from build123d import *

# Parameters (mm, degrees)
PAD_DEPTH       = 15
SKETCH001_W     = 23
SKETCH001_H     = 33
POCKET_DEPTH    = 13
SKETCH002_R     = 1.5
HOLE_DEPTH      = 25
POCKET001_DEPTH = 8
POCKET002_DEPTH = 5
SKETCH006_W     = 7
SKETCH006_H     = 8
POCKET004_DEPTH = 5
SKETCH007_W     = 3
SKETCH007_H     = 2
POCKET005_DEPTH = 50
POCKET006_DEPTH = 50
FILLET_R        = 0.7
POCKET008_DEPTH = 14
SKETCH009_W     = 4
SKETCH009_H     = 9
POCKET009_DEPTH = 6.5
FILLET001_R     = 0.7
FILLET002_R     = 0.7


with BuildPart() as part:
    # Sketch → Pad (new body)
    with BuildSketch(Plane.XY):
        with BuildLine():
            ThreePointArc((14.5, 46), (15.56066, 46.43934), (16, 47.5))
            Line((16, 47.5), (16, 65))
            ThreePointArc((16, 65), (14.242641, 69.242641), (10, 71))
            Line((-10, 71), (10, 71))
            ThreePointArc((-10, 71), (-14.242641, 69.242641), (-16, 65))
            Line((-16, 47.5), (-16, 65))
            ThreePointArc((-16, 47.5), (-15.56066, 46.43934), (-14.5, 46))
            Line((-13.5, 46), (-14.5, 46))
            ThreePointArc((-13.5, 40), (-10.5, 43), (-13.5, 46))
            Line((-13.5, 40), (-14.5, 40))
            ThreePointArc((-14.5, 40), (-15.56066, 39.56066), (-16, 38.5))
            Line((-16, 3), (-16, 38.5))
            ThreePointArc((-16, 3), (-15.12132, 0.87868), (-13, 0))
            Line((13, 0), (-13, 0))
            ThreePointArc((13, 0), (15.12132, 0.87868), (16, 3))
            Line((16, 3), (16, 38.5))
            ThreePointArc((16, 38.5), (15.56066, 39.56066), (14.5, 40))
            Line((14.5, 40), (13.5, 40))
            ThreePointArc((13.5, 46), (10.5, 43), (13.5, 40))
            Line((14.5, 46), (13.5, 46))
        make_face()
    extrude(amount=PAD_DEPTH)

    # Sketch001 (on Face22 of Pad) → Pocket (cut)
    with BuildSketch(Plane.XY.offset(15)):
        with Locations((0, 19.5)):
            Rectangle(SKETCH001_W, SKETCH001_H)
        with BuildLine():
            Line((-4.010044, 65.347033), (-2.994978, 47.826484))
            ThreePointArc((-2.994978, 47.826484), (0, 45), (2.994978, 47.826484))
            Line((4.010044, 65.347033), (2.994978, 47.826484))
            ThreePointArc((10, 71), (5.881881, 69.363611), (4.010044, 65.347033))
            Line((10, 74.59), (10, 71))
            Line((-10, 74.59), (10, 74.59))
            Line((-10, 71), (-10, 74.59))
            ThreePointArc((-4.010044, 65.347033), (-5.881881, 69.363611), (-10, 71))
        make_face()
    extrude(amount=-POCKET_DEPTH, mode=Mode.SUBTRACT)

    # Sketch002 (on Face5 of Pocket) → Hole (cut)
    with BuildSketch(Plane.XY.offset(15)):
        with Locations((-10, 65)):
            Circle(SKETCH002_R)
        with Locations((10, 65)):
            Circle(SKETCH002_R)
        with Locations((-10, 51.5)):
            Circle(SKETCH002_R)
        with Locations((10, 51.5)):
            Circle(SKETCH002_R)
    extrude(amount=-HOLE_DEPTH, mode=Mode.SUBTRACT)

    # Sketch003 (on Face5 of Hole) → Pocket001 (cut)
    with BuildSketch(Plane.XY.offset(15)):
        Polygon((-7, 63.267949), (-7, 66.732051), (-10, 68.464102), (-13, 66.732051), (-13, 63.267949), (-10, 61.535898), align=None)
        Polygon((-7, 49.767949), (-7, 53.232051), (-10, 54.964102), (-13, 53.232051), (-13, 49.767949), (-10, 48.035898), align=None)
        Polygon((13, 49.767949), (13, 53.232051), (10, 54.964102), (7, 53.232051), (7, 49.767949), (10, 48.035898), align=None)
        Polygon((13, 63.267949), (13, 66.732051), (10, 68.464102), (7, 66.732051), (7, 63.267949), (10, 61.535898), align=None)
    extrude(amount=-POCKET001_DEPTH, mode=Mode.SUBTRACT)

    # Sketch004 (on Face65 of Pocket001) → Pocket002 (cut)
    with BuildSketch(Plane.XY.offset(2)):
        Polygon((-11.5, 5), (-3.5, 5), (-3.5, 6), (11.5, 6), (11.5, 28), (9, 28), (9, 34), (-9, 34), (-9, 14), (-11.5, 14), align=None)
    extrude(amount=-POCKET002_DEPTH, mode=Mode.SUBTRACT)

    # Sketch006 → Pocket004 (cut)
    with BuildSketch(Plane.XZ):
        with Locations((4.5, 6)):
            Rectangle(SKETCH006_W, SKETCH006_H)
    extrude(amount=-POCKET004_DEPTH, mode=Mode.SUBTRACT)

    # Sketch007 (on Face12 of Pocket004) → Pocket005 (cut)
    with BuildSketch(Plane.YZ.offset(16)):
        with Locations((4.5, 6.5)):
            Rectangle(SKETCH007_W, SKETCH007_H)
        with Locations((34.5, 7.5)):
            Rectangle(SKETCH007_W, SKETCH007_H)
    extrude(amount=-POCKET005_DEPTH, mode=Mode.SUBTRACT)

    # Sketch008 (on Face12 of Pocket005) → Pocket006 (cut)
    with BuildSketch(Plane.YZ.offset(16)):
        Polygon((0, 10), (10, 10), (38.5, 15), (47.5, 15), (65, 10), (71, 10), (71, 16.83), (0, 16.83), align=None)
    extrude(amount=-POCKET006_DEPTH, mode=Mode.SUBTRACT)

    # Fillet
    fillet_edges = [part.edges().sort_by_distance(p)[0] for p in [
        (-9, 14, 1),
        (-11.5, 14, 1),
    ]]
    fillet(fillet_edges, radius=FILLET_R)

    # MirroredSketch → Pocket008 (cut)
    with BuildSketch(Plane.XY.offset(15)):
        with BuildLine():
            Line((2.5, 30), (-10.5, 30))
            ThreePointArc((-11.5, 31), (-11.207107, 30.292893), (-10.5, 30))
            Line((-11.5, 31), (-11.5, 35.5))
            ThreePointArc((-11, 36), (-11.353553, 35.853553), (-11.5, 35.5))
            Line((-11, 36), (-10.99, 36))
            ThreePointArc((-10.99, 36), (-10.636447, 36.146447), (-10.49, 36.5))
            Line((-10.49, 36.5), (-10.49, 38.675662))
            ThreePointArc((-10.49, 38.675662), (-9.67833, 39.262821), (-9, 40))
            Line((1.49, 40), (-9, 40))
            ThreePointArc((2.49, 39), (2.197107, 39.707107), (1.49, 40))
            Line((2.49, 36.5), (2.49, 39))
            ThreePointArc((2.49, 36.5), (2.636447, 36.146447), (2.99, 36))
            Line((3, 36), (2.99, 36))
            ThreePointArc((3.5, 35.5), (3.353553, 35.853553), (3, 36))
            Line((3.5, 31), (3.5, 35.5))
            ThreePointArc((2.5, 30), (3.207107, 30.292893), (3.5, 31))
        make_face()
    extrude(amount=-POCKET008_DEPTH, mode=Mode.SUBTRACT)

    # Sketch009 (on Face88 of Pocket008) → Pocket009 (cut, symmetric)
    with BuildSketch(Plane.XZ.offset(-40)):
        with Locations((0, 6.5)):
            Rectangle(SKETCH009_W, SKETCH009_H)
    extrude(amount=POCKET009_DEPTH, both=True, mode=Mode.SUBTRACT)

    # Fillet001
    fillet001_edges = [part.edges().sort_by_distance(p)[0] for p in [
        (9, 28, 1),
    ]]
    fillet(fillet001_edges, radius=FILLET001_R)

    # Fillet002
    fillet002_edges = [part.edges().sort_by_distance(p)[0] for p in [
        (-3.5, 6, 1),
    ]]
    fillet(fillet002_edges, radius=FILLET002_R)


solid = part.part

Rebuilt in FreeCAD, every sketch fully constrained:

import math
import FreeCAD as App
import Part
import Sketcher
from FreeCAD import Vector
Q = App.Units.Quantity


def edges_at(feature, points):
    """Names of the edges that pass closest to the given points."""
    edges = feature.Shape.Edges
    near = lambda p: min(range(len(edges)), key=lambda i: edges[i].distToShape(Part.Vertex(*p))[0])
    return sorted({f"Edge{near(p) + 1}" for p in points})


def add_polygon(sketch, points):
    """Adds a closed chain of lines whose ends are joined by coincident constraints."""
    first, n = sketch.GeometryCount, len(points)
    for a, b in zip(points, points[1:] + points[:1]):
        sketch.addGeometry(Part.LineSegment(App.Vector(*a, 0), App.Vector(*b, 0)), False)
    for i in range(n):
        sketch.addConstraint(Sketcher.Constraint("Coincident", first + i, 2, first + (i + 1) % n, 1))

doc = App.newDocument("Part")
body = doc.addObject("PartDesign::Body", "Body")

# Sketch on XY plane
sketch1 = body.newObject("Sketcher::SketchObject", "Sketch")
sketch1.AttachmentSupport = (doc.getObject("XY_Plane"), [""])
sketch1.MapMode = "FlatFace"
sketch1.addGeometry(Part.ArcOfCircle(Part.Circle(Vector(14.499999, 47.500001, 0), Vector(0, 0, 1), 1.500001), math.radians(-89.999978), math.radians(-0.000022)), False)
sketch1.addGeometry(Part.LineSegment(Vector(16, 47.5, 0), Vector(16, 65, 0)), False)
sketch1.addGeometry(Part.ArcOfCircle(Part.Circle(Vector(10.000001, 65.000001, 0), Vector(0, 0, 1), 5.999999), math.radians(-0.00001), math.radians(90.00001)), False)
sketch1.addGeometry(Part.LineSegment(Vector(10, 71, 0), Vector(-10, 71, 0)), False)
sketch1.addGeometry(Part.ArcOfCircle(Part.Circle(Vector(-10.000001, 65.000001, 0), Vector(0, 0, 1), 5.999999), math.radians(89.99999), math.radians(180.00001)), False)
sketch1.addGeometry(Part.LineSegment(Vector(-16, 65, 0), Vector(-16, 47.5, 0)), False)
sketch1.addGeometry(Part.ArcOfCircle(Part.Circle(Vector(-14.499999, 47.500001, 0), Vector(0, 0, 1), 1.500001), math.radians(-179.999978), math.radians(-90.000022)), False)
sketch1.addGeometry(Part.LineSegment(Vector(-14.5, 46, 0), Vector(-13.5, 46, 0)), False)
sketch1.addGeometry(Part.ArcOfCircle(Part.Circle(Vector(-13.5, 43, 0), Vector(0, 0, 1), 3), math.radians(-90), math.radians(90)), False)
sketch1.addGeometry(Part.LineSegment(Vector(-13.5, 40, 0), Vector(-14.5, 40, 0)), False)
sketch1.addGeometry(Part.ArcOfCircle(Part.Circle(Vector(-14.499999, 38.499999, 0), Vector(0, 0, 1), 1.500001), math.radians(90.000022), math.radians(179.999978)), False)
sketch1.addGeometry(Part.LineSegment(Vector(-16, 38.5, 0), Vector(-16, 3, 0)), False)
sketch1.addGeometry(Part.ArcOfCircle(Part.Circle(Vector(-12.999999, 3.000001, 0), Vector(0, 0, 1), 3.000001), math.radians(-179.999978), math.radians(-90.000022)), False)
sketch1.addGeometry(Part.LineSegment(Vector(-13, 0, 0), Vector(13, 0, 0)), False)
sketch1.addGeometry(Part.ArcOfCircle(Part.Circle(Vector(12.999999, 3.000001, 0), Vector(0, 0, 1), 3.000001), math.radians(-89.999978), math.radians(-0.000022)), False)
sketch1.addGeometry(Part.LineSegment(Vector(16, 3, 0), Vector(16, 38.5, 0)), False)
sketch1.addGeometry(Part.ArcOfCircle(Part.Circle(Vector(14.499999, 38.499999, 0), Vector(0, 0, 1), 1.500001), math.radians(0.000022), math.radians(89.999978)), False)
sketch1.addGeometry(Part.LineSegment(Vector(14.5, 40, 0), Vector(13.5, 40, 0)), False)
sketch1.addGeometry(Part.ArcOfCircle(Part.Circle(Vector(13.5, 43, 0), Vector(0, 0, 1), 3), math.radians(90), math.radians(270)), False)
sketch1.addGeometry(Part.LineSegment(Vector(13.5, 46, 0), Vector(14.5, 46, 0)), False)
sketch1.addConstraint(Sketcher.Constraint("Tangent", 0, 2, 1, 1))
sketch1.addConstraint(Sketcher.Constraint("Tangent", 1, 2, 2, 1))
sketch1.addConstraint(Sketcher.Constraint("Tangent", 2, 2, 3, 1))
sketch1.addConstraint(Sketcher.Constraint("Tangent", 3, 2, 4, 1))
sketch1.addConstraint(Sketcher.Constraint("Tangent", 4, 2, 5, 1))
sketch1.addConstraint(Sketcher.Constraint("Tangent", 5, 2, 6, 1))
sketch1.addConstraint(Sketcher.Constraint("Tangent", 6, 2, 7, 1))
sketch1.addConstraint(Sketcher.Constraint("Tangent", 7, 2, 8, 2))
sketch1.addConstraint(Sketcher.Constraint("Tangent", 8, 1, 9, 1))
sketch1.addConstraint(Sketcher.Constraint("Tangent", 9, 2, 10, 1))
sketch1.addConstraint(Sketcher.Constraint("Tangent", 10, 2, 11, 1))
sketch1.addConstraint(Sketcher.Constraint("Tangent", 11, 2, 12, 1))
sketch1.addConstraint(Sketcher.Constraint("Tangent", 12, 2, 13, 1))
sketch1.addConstraint(Sketcher.Constraint("Tangent", 13, 2, 14, 1))
sketch1.addConstraint(Sketcher.Constraint("Tangent", 14, 2, 15, 1))
sketch1.addConstraint(Sketcher.Constraint("Tangent", 15, 2, 16, 1))
sketch1.addConstraint(Sketcher.Constraint("Tangent", 16, 2, 17, 1))
sketch1.addConstraint(Sketcher.Constraint("Tangent", 17, 2, 18, 2))
sketch1.addConstraint(Sketcher.Constraint("Tangent", 18, 1, 19, 1))
sketch1.addConstraint(Sketcher.Constraint("Tangent", 19, 2, 0, 1))
sketch1.addConstraint(Sketcher.Constraint("Vertical", 1))
sketch1.addConstraint(Sketcher.Constraint("Horizontal", 3))
sketch1.addConstraint(Sketcher.Constraint("Vertical", 5))
sketch1.addConstraint(Sketcher.Constraint("Horizontal", 7))
sketch1.addConstraint(Sketcher.Constraint("Horizontal", 9))
sketch1.addConstraint(Sketcher.Constraint("Vertical", 11))
sketch1.addConstraint(Sketcher.Constraint("Horizontal", 13))
sketch1.addConstraint(Sketcher.Constraint("Vertical", 15))
sketch1.addConstraint(Sketcher.Constraint("Horizontal", 17))
sketch1.addConstraint(Sketcher.Constraint("Horizontal", 19))
sketch1.addConstraint(Sketcher.Constraint("Equal", 2, 4))
sketch1.addConstraint(Sketcher.Constraint("Equal", 0, 6))
sketch1.addConstraint(Sketcher.Constraint("Equal", 6, 10))
sketch1.addConstraint(Sketcher.Constraint("Equal", 8, 12))
sketch1.addConstraint(Sketcher.Constraint("Equal", 12, 14))
sketch1.addConstraint(Sketcher.Constraint("Equal", 10, 16))
sketch1.addConstraint(Sketcher.Constraint("Equal", 14, 18))
sketch1.addConstraint(Sketcher.Constraint("Symmetric", 12, 2, 13, 2, -1, 1))
sketch1.addConstraint(Sketcher.Constraint("Symmetric", 0, 3, 6, 3, -2))
sketch1.addConstraint(Sketcher.Constraint("Vertical", 6, 3, 10, 3))
sketch1.addConstraint(Sketcher.Constraint("Equal", 9, 17))
sketch1.addConstraint(Sketcher.Constraint("Radius", 2, Q("5.999999 mm")))
sketch1.addConstraint(Sketcher.Constraint("Radius", 8, Q("3 mm")))
sketch1.addConstraint(Sketcher.Constraint("Radius", 0, Q("1.500001 mm")))
sketch1.addConstraint(Sketcher.Constraint("DistanceX", 3, 2, 3, 1, Q("20 mm")))
sketch1.addConstraint(Sketcher.Constraint("DistanceX", 7, 1, 7, 2, Q("1 mm")))
sketch1.addConstraint(Sketcher.Constraint("DistanceY", 1, 1, 1, 2, Q("17.5 mm")))
sketch1.addConstraint(Sketcher.Constraint("DistanceY", 11, 2, 11, 1, Q("35.5 mm")))
pad1 = body.newObject("PartDesign::Pad", "Pad")
pad1.Profile = sketch1
pad1.Length = 15

# Sketch on XY plane
sketch2 = body.newObject("Sketcher::SketchObject", "Sketch001")
sketch2.AttachmentSupport = (doc.getObject("XY_Plane"), [""])
sketch2.MapMode = "FlatFace"
sketch2.AttachmentOffset = App.Placement(Vector(0, 0, 15), App.Rotation())
add_polygon(sketch2, [(-11.5, 36), (-11.5, 3), (11.5, 3), (11.5, 36)])  # lines 0-3
sketch2.addGeometry(Part.LineSegment(Vector(-4.010044, 65.347033, 0), Vector(-2.994978, 47.826484, 0)), False)  # 4
sketch2.addGeometry(Part.ArcOfCircle(Part.Circle(Vector(0, 48, 0), Vector(0, 0, 1), 3), math.radians(-176.684235), math.radians(-3.315765)), False)  # 5
sketch2.addGeometry(Part.LineSegment(Vector(2.994978, 47.826484, 0), Vector(4.010044, 65.347033, 0)), False)  # 6
sketch2.addGeometry(Part.ArcOfCircle(Part.Circle(Vector(9.999999, 65, 0), Vector(0, 0, 1), 6), math.radians(89.999993), math.radians(176.684232)), False)  # 7
sketch2.addGeometry(Part.LineSegment(Vector(10, 71, 0), Vector(10, 74.59, 0)), False)  # 8
sketch2.addGeometry(Part.LineSegment(Vector(10, 74.59, 0), Vector(-10, 74.59, 0)), False)  # 9
sketch2.addGeometry(Part.LineSegment(Vector(-10, 74.59, 0), Vector(-10, 71, 0)), False)  # 10
sketch2.addGeometry(Part.ArcOfCircle(Part.Circle(Vector(-9.999999, 65, 0), Vector(0, 0, 1), 6), math.radians(3.315768), math.radians(90.000007)), False)  # 11
sketch2.addConstraint(Sketcher.Constraint("Tangent", 4, 2, 5, 1))
sketch2.addConstraint(Sketcher.Constraint("Tangent", 5, 2, 6, 1))
sketch2.addConstraint(Sketcher.Constraint("Tangent", 6, 2, 7, 2))
sketch2.addConstraint(Sketcher.Constraint("Coincident", 7, 1, 8, 1))
sketch2.addConstraint(Sketcher.Constraint("Coincident", 8, 2, 9, 1))
sketch2.addConstraint(Sketcher.Constraint("Coincident", 9, 2, 10, 1))
sketch2.addConstraint(Sketcher.Constraint("Coincident", 10, 2, 11, 2))
sketch2.addConstraint(Sketcher.Constraint("Tangent", 11, 1, 4, 1))
sketch2.addConstraint(Sketcher.Constraint("Vertical", 0))
sketch2.addConstraint(Sketcher.Constraint("Horizontal", 1))
sketch2.addConstraint(Sketcher.Constraint("Vertical", 2))
sketch2.addConstraint(Sketcher.Constraint("Horizontal", 3))
sketch2.addConstraint(Sketcher.Constraint("Vertical", 8))
sketch2.addConstraint(Sketcher.Constraint("Horizontal", 9))
sketch2.addConstraint(Sketcher.Constraint("Vertical", 10))
sketch2.addConstraint(Sketcher.Constraint("Equal", 7, 11))
sketch2.addConstraint(Sketcher.Constraint("Symmetric", 7, 3, 11, 3, -2))
sketch2.addConstraint(Sketcher.Constraint("PointOnObject", 5, 3, -2))
sketch2.addConstraint(Sketcher.Constraint("Vertical", 11, 3, 9, 2))
sketch2.addConstraint(Sketcher.Constraint("Radius", 5, Q("3 mm")))
sketch2.addConstraint(Sketcher.Constraint("Radius", 7, Q("6 mm")))
sketch2.addConstraint(Sketcher.Constraint("DistanceX", 1, 1, 1, 2, Q("23 mm")))
sketch2.addConstraint(Sketcher.Constraint("DistanceX", 9, 2, 9, 1, Q("20 mm")))
sketch2.addConstraint(Sketcher.Constraint("DistanceY", 0, 2, 0, 1, Q("33 mm")))
sketch2.addConstraint(Sketcher.Constraint("DistanceY", -1, 1, 5, 3, Q("48 mm")))
sketch2.addConstraint(Sketcher.Constraint("DistanceX", -1, 1, 7, 3, Q("9.999999 mm")))
sketch2.addConstraint(Sketcher.Constraint("DistanceY", -1, 1, 7, 3, Q("65 mm")))
sketch2.addConstraint(Sketcher.Constraint("DistanceY", -1, 1, 0, 2, Q("3 mm")))
sketch2.addConstraint(Sketcher.Constraint("DistanceY", 8, 1, 8, 2, Q("3.59 mm")))
sketch2.addConstraint(Sketcher.Constraint("DistanceX", 0, 2, -1, 1, Q("11.5 mm")))
pocket1 = body.newObject("PartDesign::Pocket", "Pocket")
pocket1.Profile = sketch2
pocket1.Length = 13

# Sketch on XY plane
sketch3 = body.newObject("Sketcher::SketchObject", "Sketch002")
sketch3.AttachmentSupport = (doc.getObject("XY_Plane"), [""])
sketch3.MapMode = "FlatFace"
sketch3.AttachmentOffset = App.Placement(Vector(0, 0, 15), App.Rotation())
sketch3.addGeometry(Part.Circle(Vector(-10, 65, 0), Vector(0, 0, 1), 1.5), False)
sketch3.addGeometry(Part.Circle(Vector(10, 65, 0), Vector(0, 0, 1), 1.5), False)
sketch3.addGeometry(Part.Circle(Vector(-10, 51.5, 0), Vector(0, 0, 1), 1.5), False)
sketch3.addGeometry(Part.Circle(Vector(10, 51.5, 0), Vector(0, 0, 1), 1.5), False)
sketch3.addConstraint(Sketcher.Constraint("Equal", 0, 1))
sketch3.addConstraint(Sketcher.Constraint("Equal", 1, 2))
sketch3.addConstraint(Sketcher.Constraint("Equal", 2, 3))
sketch3.addConstraint(Sketcher.Constraint("Symmetric", 0, 3, 1, 3, -2))
sketch3.addConstraint(Sketcher.Constraint("Symmetric", 2, 3, 3, 3, -2))
sketch3.addConstraint(Sketcher.Constraint("Vertical", 0, 3, 2, 3))
sketch3.addConstraint(Sketcher.Constraint("Diameter", 0, Q("3 mm")))
sketch3.addConstraint(Sketcher.Constraint("DistanceX", 0, 3, -1, 1, Q("10 mm")))
sketch3.addConstraint(Sketcher.Constraint("DistanceY", -1, 1, 0, 3, Q("65 mm")))
sketch3.addConstraint(Sketcher.Constraint("DistanceY", -1, 1, 2, 3, Q("51.5 mm")))
pocket2 = body.newObject("PartDesign::Pocket", "Pocket001")
pocket2.Profile = sketch3
pocket2.Length = 25

# Sketch on XY plane
sketch4 = body.newObject("Sketcher::SketchObject", "Sketch003")
sketch4.AttachmentSupport = (doc.getObject("XY_Plane"), [""])
sketch4.MapMode = "FlatFace"
sketch4.AttachmentOffset = App.Placement(Vector(0, 0, 15), App.Rotation())
add_polygon(sketch4, [(-7, 63.267949), (-7, 66.732051), (-10, 68.464102), (-13, 66.732051), (-13, 63.267949), (-10, 61.535898)])  # lines 0-5
add_polygon(sketch4, [(-7, 49.767949), (-7, 53.232051), (-10, 54.964102), (-13, 53.232051), (-13, 49.767949), (-10, 48.035898)])  # lines 6-11
add_polygon(sketch4, [(13, 49.767949), (13, 53.232051), (10, 54.964102), (7, 53.232051), (7, 49.767949), (10, 48.035898)])  # lines 12-17
add_polygon(sketch4, [(13, 63.267949), (13, 66.732051), (10, 68.464102), (7, 66.732051), (7, 63.267949), (10, 61.535898)])  # lines 18-23
sketch4.addConstraint(Sketcher.Constraint("Vertical", 0))
sketch4.addConstraint(Sketcher.Constraint("Vertical", 3))
sketch4.addConstraint(Sketcher.Constraint("Vertical", 6))
sketch4.addConstraint(Sketcher.Constraint("Vertical", 9))
sketch4.addConstraint(Sketcher.Constraint("Vertical", 12))
sketch4.addConstraint(Sketcher.Constraint("Vertical", 15))
sketch4.addConstraint(Sketcher.Constraint("Vertical", 18))
sketch4.addConstraint(Sketcher.Constraint("Vertical", 21))
sketch4.addConstraint(Sketcher.Constraint("Symmetric", 8, 2, 12, 2, -2))
sketch4.addConstraint(Sketcher.Constraint("Symmetric", 7, 2, 13, 2, -2))
sketch4.addConstraint(Sketcher.Constraint("Symmetric", 6, 2, 14, 2, -2))
sketch4.addConstraint(Sketcher.Constraint("Symmetric", 10, 2, 16, 2, -2))
sketch4.addConstraint(Sketcher.Constraint("Symmetric", 2, 2, 18, 2, -2))
sketch4.addConstraint(Sketcher.Constraint("Symmetric", 1, 2, 19, 2, -2))
sketch4.addConstraint(Sketcher.Constraint("Symmetric", 0, 2, 20, 2, -2))
sketch4.addConstraint(Sketcher.Constraint("Symmetric", 4, 2, 22, 2, -2))
sketch4.addConstraint(Sketcher.Constraint("Parallel", 1, 4))
sketch4.addConstraint(Sketcher.Constraint("Parallel", 2, 5))
sketch4.addConstraint(Sketcher.Constraint("Parallel", 4, 7))
sketch4.addConstraint(Sketcher.Constraint("Parallel", 5, 8))
sketch4.addConstraint(Sketcher.Constraint("Parallel", 7, 10))
sketch4.addConstraint(Sketcher.Constraint("Parallel", 8, 11))
sketch4.addConstraint(Sketcher.Constraint("Parallel", 10, 13))
sketch4.addConstraint(Sketcher.Constraint("Parallel", 13, 16))
sketch4.addConstraint(Sketcher.Constraint("Parallel", 14, 17))
sketch4.addConstraint(Sketcher.Constraint("Parallel", 19, 22))
sketch4.addConstraint(Sketcher.Constraint("Parallel", 20, 23))
sketch4.addConstraint(Sketcher.Constraint("Horizontal", 0, 2, 2, 2))
sketch4.addConstraint(Sketcher.Constraint("Horizontal", 3, 2, 5, 2))
sketch4.addConstraint(Sketcher.Constraint("Horizontal", 6, 2, 8, 2))
sketch4.addConstraint(Sketcher.Constraint("Horizontal", 9, 2, 11, 2))
sketch4.addConstraint(Sketcher.Constraint("Vertical", 5, 2, 6, 2))
sketch4.addConstraint(Sketcher.Constraint("Vertical", 4, 2, 7, 2))
sketch4.addConstraint(Sketcher.Constraint("Equal", 3, 6))
sketch4.addConstraint(Sketcher.Constraint("Angle", 1, Q("149.999997 deg")))
sketch4.addConstraint(Sketcher.Constraint("DistanceX", 0, 2, -1, 1, Q("7 mm")))
sketch4.addConstraint(Sketcher.Constraint("DistanceX", 1, 2, -1, 1, Q("10 mm")))
sketch4.addConstraint(Sketcher.Constraint("DistanceY", 6, 2, 0, 2, Q("13.5 mm")))
sketch4.addConstraint(Sketcher.Constraint("DistanceY", 0, 1, 0, 2, Q("3.464102 mm")))
sketch4.addConstraint(Sketcher.Constraint("DistanceY", -1, 1, 1, 2, Q("68.464102 mm")))
pocket3 = body.newObject("PartDesign::Pocket", "Pocket002")
pocket3.Profile = sketch4
pocket3.Length = 8

# Sketch on XY plane
sketch5 = body.newObject("Sketcher::SketchObject", "Sketch004")
sketch5.AttachmentSupport = (doc.getObject("XY_Plane"), [""])
sketch5.MapMode = "FlatFace"
sketch5.AttachmentOffset = App.Placement(Vector(0, 0, 2), App.Rotation())
add_polygon(sketch5, [(-11.5, 5), (-3.5, 5), (-3.5, 6), (11.5, 6), (11.5, 28), (9, 28), (9, 34), (-9, 34), (-9, 14), (-11.5, 14)])  # lines 0-9
sketch5.addConstraint(Sketcher.Constraint("Horizontal", 0))
sketch5.addConstraint(Sketcher.Constraint("Vertical", 1))
sketch5.addConstraint(Sketcher.Constraint("Horizontal", 2))
sketch5.addConstraint(Sketcher.Constraint("Vertical", 3))
sketch5.addConstraint(Sketcher.Constraint("Horizontal", 4))
sketch5.addConstraint(Sketcher.Constraint("Vertical", 5))
sketch5.addConstraint(Sketcher.Constraint("Horizontal", 6))
sketch5.addConstraint(Sketcher.Constraint("Vertical", 7))
sketch5.addConstraint(Sketcher.Constraint("Horizontal", 8))
sketch5.addConstraint(Sketcher.Constraint("Vertical", 9))
sketch5.addConstraint(Sketcher.Constraint("Equal", 4, 8))
sketch5.addConstraint(Sketcher.Constraint("DistanceX", 0, 1, 0, 2, Q("8 mm")))
sketch5.addConstraint(Sketcher.Constraint("DistanceX", 2, 1, 2, 2, Q("15 mm")))
sketch5.addConstraint(Sketcher.Constraint("DistanceX", 6, 2, 6, 1, Q("18 mm")))
sketch5.addConstraint(Sketcher.Constraint("DistanceY", 1, 1, 1, 2, Q("1 mm")))
sketch5.addConstraint(Sketcher.Constraint("DistanceY", 3, 1, 3, 2, Q("22 mm")))
sketch5.addConstraint(Sketcher.Constraint("DistanceY", 5, 1, 5, 2, Q("6 mm")))
sketch5.addConstraint(Sketcher.Constraint("DistanceY", 7, 2, 7, 1, Q("20 mm")))
sketch5.addConstraint(Sketcher.Constraint("DistanceY", -1, 1, 0, 2, Q("5 mm")))
sketch5.addConstraint(Sketcher.Constraint("DistanceX", -1, 1, 4, 2, Q("9 mm")))
pocket4 = body.newObject("PartDesign::Pocket", "Pocket003")
pocket4.Profile = sketch5
pocket4.Length = 5

# Sketch on XZ plane
sketch6 = body.newObject("Sketcher::SketchObject", "Sketch005")
sketch6.AttachmentSupport = (doc.getObject("XZ_Plane"), [""])
sketch6.MapMode = "FlatFace"
add_polygon(sketch6, [(1, 10), (1, 2), (8, 2), (8, 10)])  # lines 0-3
sketch6.addConstraint(Sketcher.Constraint("Vertical", 0))
sketch6.addConstraint(Sketcher.Constraint("Horizontal", 1))
sketch6.addConstraint(Sketcher.Constraint("Vertical", 2))
sketch6.addConstraint(Sketcher.Constraint("Horizontal", 3))
sketch6.addConstraint(Sketcher.Constraint("DistanceX", 1, 1, 1, 2, Q("7 mm")))
sketch6.addConstraint(Sketcher.Constraint("DistanceY", 0, 2, 0, 1, Q("8 mm")))
sketch6.addConstraint(Sketcher.Constraint("DistanceX", -1, 1, 0, 2, Q("1 mm")))
sketch6.addConstraint(Sketcher.Constraint("DistanceY", -1, 1, 0, 2, Q("2 mm")))
pocket5 = body.newObject("PartDesign::Pocket", "Pocket004")
pocket5.Profile = sketch6
pocket5.Length = 5

# Sketch on YZ plane
sketch7 = body.newObject("Sketcher::SketchObject", "Sketch006")
sketch7.AttachmentSupport = (doc.getObject("YZ_Plane"), [""])
sketch7.MapMode = "FlatFace"
sketch7.AttachmentOffset = App.Placement(Vector(0, 0, 16), App.Rotation())
add_polygon(sketch7, [(3, 7.5), (3, 5.5), (6, 5.5), (6, 7.5)])  # lines 0-3
add_polygon(sketch7, [(33, 8.5), (33, 6.5), (36, 6.5), (36, 8.5)])  # lines 4-7
sketch7.addConstraint(Sketcher.Constraint("Vertical", 0))
sketch7.addConstraint(Sketcher.Constraint("Horizontal", 1))
sketch7.addConstraint(Sketcher.Constraint("Vertical", 2))
sketch7.addConstraint(Sketcher.Constraint("Horizontal", 3))
sketch7.addConstraint(Sketcher.Constraint("Vertical", 4))
sketch7.addConstraint(Sketcher.Constraint("Horizontal", 5))
sketch7.addConstraint(Sketcher.Constraint("Vertical", 6))
sketch7.addConstraint(Sketcher.Constraint("Horizontal", 7))
sketch7.addConstraint(Sketcher.Constraint("Equal", 3, 5))
sketch7.addConstraint(Sketcher.Constraint("Equal", 2, 4))
sketch7.addConstraint(Sketcher.Constraint("DistanceX", 1, 1, 1, 2, Q("3 mm")))
sketch7.addConstraint(Sketcher.Constraint("DistanceY", 0, 2, 0, 1, Q("2 mm")))
sketch7.addConstraint(Sketcher.Constraint("DistanceX", -1, 1, 0, 2, Q("3 mm")))
sketch7.addConstraint(Sketcher.Constraint("DistanceX", -1, 1, 4, 2, Q("33 mm")))
sketch7.addConstraint(Sketcher.Constraint("DistanceY", 1, 2, 4, 2, Q("1 mm")))
sketch7.addConstraint(Sketcher.Constraint("DistanceY", -1, 1, 0, 2, Q("5.5 mm")))
pocket6 = body.newObject("PartDesign::Pocket", "Pocket005")
pocket6.Profile = sketch7
pocket6.Length = 50

# Sketch on YZ plane
sketch8 = body.newObject("Sketcher::SketchObject", "Sketch007")
sketch8.AttachmentSupport = (doc.getObject("YZ_Plane"), [""])
sketch8.MapMode = "FlatFace"
sketch8.AttachmentOffset = App.Placement(Vector(0, 0, 16), App.Rotation())
add_polygon(sketch8, [(0, 10), (10, 10), (38.5, 15), (47.5, 15), (65, 10), (71, 10), (71, 16.83), (0, 16.83)])  # lines 0-7
sketch8.addConstraint(Sketcher.Constraint("Horizontal", 0))
sketch8.addConstraint(Sketcher.Constraint("Horizontal", 2))
sketch8.addConstraint(Sketcher.Constraint("Horizontal", 4))
sketch8.addConstraint(Sketcher.Constraint("Vertical", 5))
sketch8.addConstraint(Sketcher.Constraint("Horizontal", 6))
sketch8.addConstraint(Sketcher.Constraint("Vertical", 7))
sketch8.addConstraint(Sketcher.Constraint("PointOnObject", 6, 2, -2))
sketch8.addConstraint(Sketcher.Constraint("Horizontal", 0, 2, 3, 2))
sketch8.addConstraint(Sketcher.Constraint("DistanceX", 0, 1, 0, 2, Q("10 mm")))
sketch8.addConstraint(Sketcher.Constraint("DistanceX", 2, 1, 2, 2, Q("9 mm")))
sketch8.addConstraint(Sketcher.Constraint("DistanceX", 4, 1, 4, 2, Q("6 mm")))
sketch8.addConstraint(Sketcher.Constraint("DistanceX", 6, 2, 6, 1, Q("71 mm")))
sketch8.addConstraint(Sketcher.Constraint("DistanceY", -1, 1, 0, 2, Q("10 mm")))
sketch8.addConstraint(Sketcher.Constraint("DistanceY", -1, 1, 1, 2, Q("15 mm")))
sketch8.addConstraint(Sketcher.Constraint("DistanceY", 5, 1, 5, 2, Q("6.83 mm")))
sketch8.addConstraint(Sketcher.Constraint("DistanceX", -1, 1, 1, 2, Q("38.5 mm")))
pocket7 = body.newObject("PartDesign::Pocket", "Pocket006")
pocket7.Profile = sketch8
pocket7.Length = 50
doc.recompute()

fillet = body.newObject("PartDesign::Fillet", "Fillet")
fillet.Base = (pocket7, edges_at(pocket7, [(-9, 14, 1), (-11.5, 14, 1)]))
fillet.Radius = 0.7

# Sketch on XY plane
sketch9 = body.newObject("Sketcher::SketchObject", "Sketch008")
sketch9.AttachmentSupport = (doc.getObject("XY_Plane"), [""])
sketch9.MapMode = "FlatFace"
sketch9.AttachmentOffset = App.Placement(Vector(0, 0, 15), App.Rotation())
sketch9.addGeometry(Part.LineSegment(Vector(-10.5, 30, 0), Vector(2.5, 30, 0)), False)
sketch9.addGeometry(Part.ArcOfCircle(Part.Circle(Vector(2.500001, 30.999999, 0), Vector(0, 0, 1), 0.999999), math.radians(-90.000043), math.radians(0.000043)), False)
sketch9.addGeometry(Part.LineSegment(Vector(3.5, 31, 0), Vector(3.5, 35.5, 0)), False)
sketch9.addGeometry(Part.ArcOfCircle(Part.Circle(Vector(2.999999, 35.499999, 0), Vector(0, 0, 1), 0.500001), math.radians(0.000153), math.radians(89.999847)), False)
sketch9.addGeometry(Part.LineSegment(Vector(3, 36, 0), Vector(2.99, 36, 0)), False)
sketch9.addGeometry(Part.ArcOfCircle(Part.Circle(Vector(2.990001, 36.500001, 0), Vector(0, 0, 1), 0.500001), math.radians(-179.999847), math.radians(-90.000153)), False)
sketch9.addGeometry(Part.LineSegment(Vector(2.49, 36.5, 0), Vector(2.49, 39, 0)), False)
sketch9.addGeometry(Part.ArcOfCircle(Part.Circle(Vector(1.490001, 39.000001, 0), Vector(0, 0, 1), 0.999999), math.radians(-0.000043), math.radians(90.000043)), False)
sketch9.addGeometry(Part.LineSegment(Vector(1.49, 40, 0), Vector(-9, 40, 0)), False)
sketch9.addGeometry(Part.ArcOfCircle(Part.Circle(Vector(-13.000003, 43.000004, 0), Vector(0, 0, 1), 5.000005), math.radians(-59.867582), math.radians(-36.869913)), False)
sketch9.addGeometry(Part.LineSegment(Vector(-10.49, 38.675662, 0), Vector(-10.49, 36.5, 0)), False)
sketch9.addGeometry(Part.ArcOfCircle(Part.Circle(Vector(-10.990001, 36.500001, 0), Vector(0, 0, 1), 0.500001), math.radians(-89.999847), math.radians(-0.000153)), False)
sketch9.addGeometry(Part.LineSegment(Vector(-10.99, 36, 0), Vector(-11, 36, 0)), False)
sketch9.addGeometry(Part.ArcOfCircle(Part.Circle(Vector(-10.999999, 35.499999, 0), Vector(0, 0, 1), 0.500001), math.radians(90.000153), math.radians(179.999847)), False)
sketch9.addGeometry(Part.LineSegment(Vector(-11.5, 35.5, 0), Vector(-11.5, 31, 0)), False)
sketch9.addGeometry(Part.ArcOfCircle(Part.Circle(Vector(-10.500001, 30.999999, 0), Vector(0, 0, 1), 0.999999), math.radians(179.999957), math.radians(270.000043)), False)
sketch9.addConstraint(Sketcher.Constraint("Tangent", 0, 2, 1, 1))
sketch9.addConstraint(Sketcher.Constraint("Tangent", 1, 2, 2, 1))
sketch9.addConstraint(Sketcher.Constraint("Coincident", 2, 2, 3, 1))
sketch9.addConstraint(Sketcher.Constraint("Coincident", 3, 2, 4, 1))
sketch9.addConstraint(Sketcher.Constraint("Coincident", 4, 2, 5, 2))
sketch9.addConstraint(Sketcher.Constraint("Coincident", 5, 1, 6, 1))
sketch9.addConstraint(Sketcher.Constraint("Tangent", 6, 2, 7, 1))
sketch9.addConstraint(Sketcher.Constraint("Tangent", 7, 2, 8, 1))
sketch9.addConstraint(Sketcher.Constraint("Coincident", 8, 2, 9, 2))
sketch9.addConstraint(Sketcher.Constraint("Coincident", 9, 1, 10, 1))
sketch9.addConstraint(Sketcher.Constraint("Coincident", 10, 2, 11, 2))
sketch9.addConstraint(Sketcher.Constraint("Coincident", 11, 1, 12, 1))
sketch9.addConstraint(Sketcher.Constraint("Coincident", 12, 2, 13, 1))
sketch9.addConstraint(Sketcher.Constraint("Coincident", 13, 2, 14, 1))
sketch9.addConstraint(Sketcher.Constraint("Tangent", 14, 2, 15, 1))
sketch9.addConstraint(Sketcher.Constraint("Tangent", 15, 2, 0, 1))
sketch9.addConstraint(Sketcher.Constraint("Horizontal", 0))
sketch9.addConstraint(Sketcher.Constraint("Vertical", 2))
sketch9.addConstraint(Sketcher.Constraint("Horizontal", 4))
sketch9.addConstraint(Sketcher.Constraint("Vertical", 6))
sketch9.addConstraint(Sketcher.Constraint("Horizontal", 8))
sketch9.addConstraint(Sketcher.Constraint("Vertical", 10))
sketch9.addConstraint(Sketcher.Constraint("Horizontal", 12))
sketch9.addConstraint(Sketcher.Constraint("Vertical", 14))
sketch9.addConstraint(Sketcher.Constraint("Equal", 3, 5))
sketch9.addConstraint(Sketcher.Constraint("Equal", 1, 7))
sketch9.addConstraint(Sketcher.Constraint("Equal", 5, 11))
sketch9.addConstraint(Sketcher.Constraint("Equal", 11, 13))
sketch9.addConstraint(Sketcher.Constraint("Equal", 7, 15))
sketch9.addConstraint(Sketcher.Constraint("Horizontal", 5, 3, 11, 3))
sketch9.addConstraint(Sketcher.Constraint("Horizontal", 13, 3, 2, 2))
sketch9.addConstraint(Sketcher.Constraint("Horizontal", 11, 3, 5, 1))
sketch9.addConstraint(Sketcher.Constraint("Horizontal", 5, 1, 10, 2))
sketch9.addConstraint(Sketcher.Constraint("Horizontal", 2, 2, 13, 2))
sketch9.addConstraint(Sketcher.Constraint("Vertical", 5, 3, 4, 2))
sketch9.addConstraint(Sketcher.Constraint("Vertical", 13, 3, 12, 2))
sketch9.addConstraint(Sketcher.Constraint("Equal", 4, 12))
sketch9.addConstraint(Sketcher.Constraint("Radius", 1, Q("0.999999 mm")))
sketch9.addConstraint(Sketcher.Constraint("Radius", 3, Q("0.500001 mm")))
sketch9.addConstraint(Sketcher.Constraint("DistanceX", 0, 1, 0, 2, Q("13 mm")))
sketch9.addConstraint(Sketcher.Constraint("DistanceY", 2, 1, 2, 2, Q("4.5 mm")))
sketch9.addConstraint(Sketcher.Constraint("DistanceY", 6, 1, 6, 2, Q("2.5 mm")))
sketch9.addConstraint(Sketcher.Constraint("DistanceY", -1, 1, 1, 3, Q("30.999999 mm")))
sketch9.addConstraint(Sketcher.Constraint("DistanceX", -1, 1, 3, 3, Q("2.999999 mm")))
sketch9.addConstraint(Sketcher.Constraint("DistanceX", -1, 1, 3, 2, Q("3 mm")))
sketch9.addConstraint(Sketcher.Constraint("DistanceX", 8, 2, -1, 1, Q("9 mm")))
sketch9.addConstraint(Sketcher.Constraint("DistanceX", 4, 2, 4, 1, Q("0.01 mm")))
sketch9.addConstraint(Sketcher.Constraint("DistanceX", 11, 1, 10, 2, Q("0.5 mm")))
sketch9.addConstraint(Sketcher.Constraint("Radius", 9, Q("5.000005 mm")))
sketch9.addConstraint(Sketcher.Constraint("DistanceY", 10, 2, 10, 1, Q("2.175662 mm")))
pocket8 = body.newObject("PartDesign::Pocket", "Pocket007")
pocket8.Profile = sketch9
pocket8.Length = 14

# Sketch on XZ plane
sketch10 = body.newObject("Sketcher::SketchObject", "Sketch009")
sketch10.AttachmentSupport = (doc.getObject("XZ_Plane"), [""])
sketch10.MapMode = "FlatFace"
sketch10.AttachmentOffset = App.Placement(Vector(0, 0, -40), App.Rotation())
add_polygon(sketch10, [(-2, 11), (-2, 2), (2, 2), (2, 11)])  # lines 0-3
sketch10.addConstraint(Sketcher.Constraint("Vertical", 0))
sketch10.addConstraint(Sketcher.Constraint("Horizontal", 1))
sketch10.addConstraint(Sketcher.Constraint("Vertical", 2))
sketch10.addConstraint(Sketcher.Constraint("Horizontal", 3))
sketch10.addConstraint(Sketcher.Constraint("DistanceX", 1, 1, 1, 2, Q("4 mm")))
sketch10.addConstraint(Sketcher.Constraint("DistanceY", 0, 2, 0, 1, Q("9 mm")))
sketch10.addConstraint(Sketcher.Constraint("DistanceX", 0, 2, -1, 1, Q("2 mm")))
sketch10.addConstraint(Sketcher.Constraint("DistanceY", -1, 1, 0, 2, Q("2 mm")))
pocket9 = body.newObject("PartDesign::Pocket", "Pocket008")
pocket9.Profile = sketch10
pocket9.Length = 13
pocket9.Midplane = True
doc.recompute()

fillet2 = body.newObject("PartDesign::Fillet", "Fillet001")
fillet2.Base = (pocket9, edges_at(pocket9, [(9, 28, 1)]))
fillet2.Radius = 0.7
doc.recompute()

fillet3 = body.newObject("PartDesign::Fillet", "Fillet002")
fillet3.Base = (fillet2, edges_at(fillet2, [(-3.5, 6, 1)]))
fillet3.Radius = 0.7

doc.recompute()
